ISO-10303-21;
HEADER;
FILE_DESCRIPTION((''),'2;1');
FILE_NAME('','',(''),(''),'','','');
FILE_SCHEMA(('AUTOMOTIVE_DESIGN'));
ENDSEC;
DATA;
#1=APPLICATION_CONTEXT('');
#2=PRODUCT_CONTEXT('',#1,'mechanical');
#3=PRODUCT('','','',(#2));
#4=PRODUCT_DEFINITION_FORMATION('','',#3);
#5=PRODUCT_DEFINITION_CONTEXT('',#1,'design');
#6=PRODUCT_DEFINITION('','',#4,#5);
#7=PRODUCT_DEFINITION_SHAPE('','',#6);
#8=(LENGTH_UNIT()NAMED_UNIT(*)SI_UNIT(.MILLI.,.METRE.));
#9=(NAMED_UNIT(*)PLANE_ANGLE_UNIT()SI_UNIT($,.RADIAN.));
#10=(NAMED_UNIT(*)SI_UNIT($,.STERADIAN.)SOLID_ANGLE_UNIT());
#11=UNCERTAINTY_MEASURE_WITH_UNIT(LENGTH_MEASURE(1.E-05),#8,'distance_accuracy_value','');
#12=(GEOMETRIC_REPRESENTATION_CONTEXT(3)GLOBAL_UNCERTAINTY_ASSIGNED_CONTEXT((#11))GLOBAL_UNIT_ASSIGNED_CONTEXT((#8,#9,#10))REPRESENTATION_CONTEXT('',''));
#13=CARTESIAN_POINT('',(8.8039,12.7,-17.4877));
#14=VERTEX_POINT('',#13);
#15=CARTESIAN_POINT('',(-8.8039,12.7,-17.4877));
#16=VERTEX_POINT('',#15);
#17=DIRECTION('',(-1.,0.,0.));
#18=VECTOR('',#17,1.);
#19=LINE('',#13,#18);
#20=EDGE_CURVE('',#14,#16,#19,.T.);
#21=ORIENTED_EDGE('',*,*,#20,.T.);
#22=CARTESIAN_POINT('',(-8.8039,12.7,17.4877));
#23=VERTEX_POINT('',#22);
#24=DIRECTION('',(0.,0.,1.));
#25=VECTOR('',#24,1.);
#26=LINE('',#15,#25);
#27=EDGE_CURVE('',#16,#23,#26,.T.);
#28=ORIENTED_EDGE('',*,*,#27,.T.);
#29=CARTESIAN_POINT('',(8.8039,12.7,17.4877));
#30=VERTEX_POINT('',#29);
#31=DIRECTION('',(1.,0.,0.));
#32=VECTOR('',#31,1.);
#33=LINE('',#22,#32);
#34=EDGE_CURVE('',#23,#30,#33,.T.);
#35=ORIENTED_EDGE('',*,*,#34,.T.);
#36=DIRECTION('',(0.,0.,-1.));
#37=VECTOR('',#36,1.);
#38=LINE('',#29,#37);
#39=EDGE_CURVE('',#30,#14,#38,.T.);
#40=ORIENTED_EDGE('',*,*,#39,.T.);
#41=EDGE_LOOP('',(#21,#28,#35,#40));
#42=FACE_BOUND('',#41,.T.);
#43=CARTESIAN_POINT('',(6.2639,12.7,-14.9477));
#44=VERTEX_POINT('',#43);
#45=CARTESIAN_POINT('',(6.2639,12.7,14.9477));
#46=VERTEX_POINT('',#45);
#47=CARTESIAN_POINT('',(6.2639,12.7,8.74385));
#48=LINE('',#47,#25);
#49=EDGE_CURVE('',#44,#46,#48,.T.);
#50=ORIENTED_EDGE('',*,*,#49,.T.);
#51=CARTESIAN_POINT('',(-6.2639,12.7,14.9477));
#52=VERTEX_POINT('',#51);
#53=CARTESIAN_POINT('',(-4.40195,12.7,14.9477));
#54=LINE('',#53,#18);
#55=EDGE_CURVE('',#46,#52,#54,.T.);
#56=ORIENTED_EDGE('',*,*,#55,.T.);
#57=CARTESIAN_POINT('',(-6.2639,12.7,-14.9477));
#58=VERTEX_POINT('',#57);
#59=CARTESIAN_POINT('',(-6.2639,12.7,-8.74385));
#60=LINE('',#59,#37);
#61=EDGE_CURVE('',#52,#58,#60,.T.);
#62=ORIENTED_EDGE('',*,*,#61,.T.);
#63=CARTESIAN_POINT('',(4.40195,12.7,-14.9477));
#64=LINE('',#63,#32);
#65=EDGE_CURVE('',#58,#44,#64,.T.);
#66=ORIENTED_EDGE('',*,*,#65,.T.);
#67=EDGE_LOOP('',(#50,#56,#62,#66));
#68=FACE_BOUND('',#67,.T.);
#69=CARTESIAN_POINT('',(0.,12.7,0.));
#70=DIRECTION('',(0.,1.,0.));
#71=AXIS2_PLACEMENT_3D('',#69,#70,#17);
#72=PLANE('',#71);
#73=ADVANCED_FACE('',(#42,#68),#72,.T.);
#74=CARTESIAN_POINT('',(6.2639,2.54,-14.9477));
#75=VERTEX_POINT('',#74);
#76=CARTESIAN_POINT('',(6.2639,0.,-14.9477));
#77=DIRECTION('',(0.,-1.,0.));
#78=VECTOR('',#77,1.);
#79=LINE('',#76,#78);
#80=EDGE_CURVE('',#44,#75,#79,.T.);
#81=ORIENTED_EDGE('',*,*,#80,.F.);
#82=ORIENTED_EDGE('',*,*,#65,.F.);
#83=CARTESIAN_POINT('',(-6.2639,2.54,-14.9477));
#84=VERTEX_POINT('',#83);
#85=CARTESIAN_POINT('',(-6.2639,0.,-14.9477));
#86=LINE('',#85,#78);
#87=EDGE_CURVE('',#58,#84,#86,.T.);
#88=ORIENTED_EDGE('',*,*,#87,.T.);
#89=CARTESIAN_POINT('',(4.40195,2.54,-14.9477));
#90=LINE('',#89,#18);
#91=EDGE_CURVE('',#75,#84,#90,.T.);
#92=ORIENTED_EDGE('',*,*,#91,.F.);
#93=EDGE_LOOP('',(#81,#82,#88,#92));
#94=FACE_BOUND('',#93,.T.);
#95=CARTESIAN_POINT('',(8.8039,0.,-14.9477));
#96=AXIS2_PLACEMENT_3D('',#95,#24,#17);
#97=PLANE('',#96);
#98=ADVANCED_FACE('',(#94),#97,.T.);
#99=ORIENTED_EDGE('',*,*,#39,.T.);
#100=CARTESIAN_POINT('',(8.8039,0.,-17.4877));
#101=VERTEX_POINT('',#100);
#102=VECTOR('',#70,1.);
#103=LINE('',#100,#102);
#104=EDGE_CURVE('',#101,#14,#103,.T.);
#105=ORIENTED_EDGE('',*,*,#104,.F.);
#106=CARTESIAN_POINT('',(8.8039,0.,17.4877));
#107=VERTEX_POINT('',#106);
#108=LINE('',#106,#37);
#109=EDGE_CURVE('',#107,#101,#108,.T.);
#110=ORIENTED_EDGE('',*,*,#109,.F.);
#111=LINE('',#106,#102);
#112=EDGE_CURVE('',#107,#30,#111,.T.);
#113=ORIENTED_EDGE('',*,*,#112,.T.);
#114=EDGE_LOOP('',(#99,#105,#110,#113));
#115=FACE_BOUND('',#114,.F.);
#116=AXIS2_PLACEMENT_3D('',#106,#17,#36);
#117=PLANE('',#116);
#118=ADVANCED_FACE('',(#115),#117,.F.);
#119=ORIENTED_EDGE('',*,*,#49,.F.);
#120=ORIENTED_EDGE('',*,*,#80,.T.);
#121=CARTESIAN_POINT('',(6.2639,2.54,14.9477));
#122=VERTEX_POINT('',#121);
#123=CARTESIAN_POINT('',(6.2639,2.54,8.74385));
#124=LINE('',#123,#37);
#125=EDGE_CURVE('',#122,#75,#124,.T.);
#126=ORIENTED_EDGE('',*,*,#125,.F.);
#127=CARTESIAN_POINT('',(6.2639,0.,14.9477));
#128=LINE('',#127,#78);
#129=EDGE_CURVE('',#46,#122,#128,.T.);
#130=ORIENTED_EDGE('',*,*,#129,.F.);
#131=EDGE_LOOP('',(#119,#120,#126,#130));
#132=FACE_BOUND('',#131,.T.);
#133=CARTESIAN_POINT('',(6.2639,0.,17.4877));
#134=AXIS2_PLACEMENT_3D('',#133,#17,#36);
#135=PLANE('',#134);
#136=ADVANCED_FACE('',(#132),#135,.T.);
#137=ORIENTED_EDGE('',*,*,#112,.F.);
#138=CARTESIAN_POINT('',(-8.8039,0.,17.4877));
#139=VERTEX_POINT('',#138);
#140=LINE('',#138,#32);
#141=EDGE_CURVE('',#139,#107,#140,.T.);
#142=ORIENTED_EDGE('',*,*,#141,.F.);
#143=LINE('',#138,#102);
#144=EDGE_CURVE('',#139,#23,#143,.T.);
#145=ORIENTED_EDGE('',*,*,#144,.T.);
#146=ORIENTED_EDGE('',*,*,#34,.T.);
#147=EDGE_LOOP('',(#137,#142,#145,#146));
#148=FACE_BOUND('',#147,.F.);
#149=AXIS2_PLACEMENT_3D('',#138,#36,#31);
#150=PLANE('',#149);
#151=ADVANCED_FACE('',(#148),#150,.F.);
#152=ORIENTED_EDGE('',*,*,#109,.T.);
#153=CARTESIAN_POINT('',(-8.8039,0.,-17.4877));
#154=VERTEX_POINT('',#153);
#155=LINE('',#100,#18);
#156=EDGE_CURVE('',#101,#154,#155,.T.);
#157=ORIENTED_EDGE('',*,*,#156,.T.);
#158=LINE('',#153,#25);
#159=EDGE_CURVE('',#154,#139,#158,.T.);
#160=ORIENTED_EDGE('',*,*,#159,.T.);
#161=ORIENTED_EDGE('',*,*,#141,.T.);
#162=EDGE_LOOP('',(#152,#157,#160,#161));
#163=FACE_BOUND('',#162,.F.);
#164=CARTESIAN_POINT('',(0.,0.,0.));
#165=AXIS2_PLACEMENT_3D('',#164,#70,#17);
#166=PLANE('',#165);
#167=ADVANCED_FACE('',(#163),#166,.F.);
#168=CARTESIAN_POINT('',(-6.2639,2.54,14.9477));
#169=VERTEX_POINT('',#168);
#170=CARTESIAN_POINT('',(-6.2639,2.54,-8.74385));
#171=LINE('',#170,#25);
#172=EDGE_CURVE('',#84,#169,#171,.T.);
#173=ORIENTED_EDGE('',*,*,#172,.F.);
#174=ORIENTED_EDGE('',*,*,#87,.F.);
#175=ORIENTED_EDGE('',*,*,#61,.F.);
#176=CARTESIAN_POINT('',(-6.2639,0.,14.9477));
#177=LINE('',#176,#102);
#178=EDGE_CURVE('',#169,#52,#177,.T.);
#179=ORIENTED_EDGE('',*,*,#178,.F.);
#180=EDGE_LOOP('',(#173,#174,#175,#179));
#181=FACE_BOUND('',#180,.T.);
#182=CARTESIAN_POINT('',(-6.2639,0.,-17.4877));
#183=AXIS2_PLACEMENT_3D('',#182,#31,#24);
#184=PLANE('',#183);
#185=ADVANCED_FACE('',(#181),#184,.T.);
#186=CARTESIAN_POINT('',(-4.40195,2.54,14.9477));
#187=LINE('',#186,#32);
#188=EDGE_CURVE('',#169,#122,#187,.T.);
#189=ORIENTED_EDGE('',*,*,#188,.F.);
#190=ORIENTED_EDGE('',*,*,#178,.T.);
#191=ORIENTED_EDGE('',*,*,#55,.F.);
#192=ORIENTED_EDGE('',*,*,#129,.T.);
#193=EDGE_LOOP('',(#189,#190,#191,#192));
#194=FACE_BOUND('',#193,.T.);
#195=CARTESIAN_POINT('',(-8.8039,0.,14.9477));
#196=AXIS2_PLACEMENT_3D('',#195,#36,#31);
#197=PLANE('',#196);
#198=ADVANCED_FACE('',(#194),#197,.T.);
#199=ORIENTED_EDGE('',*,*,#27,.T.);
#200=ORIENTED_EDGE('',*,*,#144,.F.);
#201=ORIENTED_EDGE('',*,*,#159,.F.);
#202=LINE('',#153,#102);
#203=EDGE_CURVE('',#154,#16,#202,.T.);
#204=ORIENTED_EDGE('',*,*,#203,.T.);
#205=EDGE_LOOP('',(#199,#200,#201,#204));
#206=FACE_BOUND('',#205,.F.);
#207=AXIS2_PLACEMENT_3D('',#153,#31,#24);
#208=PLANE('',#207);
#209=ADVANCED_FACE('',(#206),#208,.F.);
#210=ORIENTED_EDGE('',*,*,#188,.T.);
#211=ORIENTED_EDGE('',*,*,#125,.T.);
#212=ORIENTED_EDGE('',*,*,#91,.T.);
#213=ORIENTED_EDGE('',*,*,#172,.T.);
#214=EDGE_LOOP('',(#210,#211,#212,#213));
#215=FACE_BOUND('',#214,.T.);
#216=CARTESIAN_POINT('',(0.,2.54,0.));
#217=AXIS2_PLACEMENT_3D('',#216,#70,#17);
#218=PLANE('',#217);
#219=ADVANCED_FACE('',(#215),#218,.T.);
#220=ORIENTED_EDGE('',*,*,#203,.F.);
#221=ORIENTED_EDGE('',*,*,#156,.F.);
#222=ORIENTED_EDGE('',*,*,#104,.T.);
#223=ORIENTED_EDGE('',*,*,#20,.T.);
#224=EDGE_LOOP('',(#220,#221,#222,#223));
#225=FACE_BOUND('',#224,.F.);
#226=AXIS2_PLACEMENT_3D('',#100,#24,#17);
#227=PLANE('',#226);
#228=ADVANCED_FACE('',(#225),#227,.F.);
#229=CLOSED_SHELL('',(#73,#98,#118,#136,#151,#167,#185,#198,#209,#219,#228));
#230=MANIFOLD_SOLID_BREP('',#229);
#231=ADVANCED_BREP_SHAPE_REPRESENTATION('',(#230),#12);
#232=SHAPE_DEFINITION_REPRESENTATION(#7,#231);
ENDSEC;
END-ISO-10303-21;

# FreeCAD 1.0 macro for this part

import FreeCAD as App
import Part
import Sketcher

V = App.Vector
Q = App.Units.Quantity


def faces_at(feature, points):
    """Names of the faces that lie closest to the given points."""
    faces = feature.Shape.Faces
    near = lambda p: min(range(len(faces)), key=lambda i: faces[i].distToShape(Part.Vertex(*p))[0])
    return sorted({f"Face{near(p) + 1}" for p in points})

doc = App.newDocument("Part")
params = doc.addObject("Spreadsheet::Sheet", "Params")
for row, (alias, value) in enumerate([
    ("pad1_length", "0.5 in"),
    ("thickness_wall", "0.1 in"),
], start=1):
    params.set(f"A{row}", alias)
    params.set(f"B{row}", "=" + value)
    params.setAlias(f"B{row}", alias)

body = doc.addObject("PartDesign::Body", "Body")

sketch1 = body.newObject("Sketcher::SketchObject", "Sketch")
sketch1.AttachmentSupport = (doc.getObject("XZ_Plane"), [""])
sketch1.MapMode = "FlatFace"
sketch1.addGeometry([
    Part.LineSegment(V(-9, -17, 0), V(-9, 17, 0)),
    Part.LineSegment(V(-9, 17, 0), V(9, 17, 0)),
    Part.LineSegment(V(9, 17, 0), V(9, -17, 0)),
    Part.LineSegment(V(9, -17, 0), V(-9, -17, 0)),
], False)
sketch1.addConstraint([
    Sketcher.Constraint("Coincident", 0, 2, 1, 1),
    Sketcher.Constraint("Coincident", 1, 2, 2, 1),
    Sketcher.Constraint("Coincident", 2, 2, 3, 1),
    Sketcher.Constraint("Coincident", 3, 2, 0, 1),
    Sketcher.Constraint("Vertical", 0),
    Sketcher.Constraint("Horizontal", 1),
    Sketcher.Constraint("Vertical", 2),
    Sketcher.Constraint("Horizontal", 3),
    Sketcher.Constraint("Symmetric", 0, 2, 2, 2, -1, 1),
    Sketcher.Constraint("DistanceX", 1, 1, 1, 2, Q("17.6078 mm")),
    Sketcher.Constraint("DistanceY", 0, 1, 0, 2, Q("34.9754 mm")),
])
pad1 = body.newObject("PartDesign::Pad", "Pad")
pad1.Profile = sketch1
pad1.setExpression("Length", "Params.pad1_length")
pad1.Reversed = True
doc.recompute()

thickness = body.newObject("PartDesign::Thickness", "Thickness")
thickness.Base = (pad1, faces_at(pad1, [(2.935, 12.7, 5.829)]))
thickness.setExpression("Value", "Params.thickness_wall")
thickness.Reversed = True
thickness.Join = "Intersection"

doc.recompute()
